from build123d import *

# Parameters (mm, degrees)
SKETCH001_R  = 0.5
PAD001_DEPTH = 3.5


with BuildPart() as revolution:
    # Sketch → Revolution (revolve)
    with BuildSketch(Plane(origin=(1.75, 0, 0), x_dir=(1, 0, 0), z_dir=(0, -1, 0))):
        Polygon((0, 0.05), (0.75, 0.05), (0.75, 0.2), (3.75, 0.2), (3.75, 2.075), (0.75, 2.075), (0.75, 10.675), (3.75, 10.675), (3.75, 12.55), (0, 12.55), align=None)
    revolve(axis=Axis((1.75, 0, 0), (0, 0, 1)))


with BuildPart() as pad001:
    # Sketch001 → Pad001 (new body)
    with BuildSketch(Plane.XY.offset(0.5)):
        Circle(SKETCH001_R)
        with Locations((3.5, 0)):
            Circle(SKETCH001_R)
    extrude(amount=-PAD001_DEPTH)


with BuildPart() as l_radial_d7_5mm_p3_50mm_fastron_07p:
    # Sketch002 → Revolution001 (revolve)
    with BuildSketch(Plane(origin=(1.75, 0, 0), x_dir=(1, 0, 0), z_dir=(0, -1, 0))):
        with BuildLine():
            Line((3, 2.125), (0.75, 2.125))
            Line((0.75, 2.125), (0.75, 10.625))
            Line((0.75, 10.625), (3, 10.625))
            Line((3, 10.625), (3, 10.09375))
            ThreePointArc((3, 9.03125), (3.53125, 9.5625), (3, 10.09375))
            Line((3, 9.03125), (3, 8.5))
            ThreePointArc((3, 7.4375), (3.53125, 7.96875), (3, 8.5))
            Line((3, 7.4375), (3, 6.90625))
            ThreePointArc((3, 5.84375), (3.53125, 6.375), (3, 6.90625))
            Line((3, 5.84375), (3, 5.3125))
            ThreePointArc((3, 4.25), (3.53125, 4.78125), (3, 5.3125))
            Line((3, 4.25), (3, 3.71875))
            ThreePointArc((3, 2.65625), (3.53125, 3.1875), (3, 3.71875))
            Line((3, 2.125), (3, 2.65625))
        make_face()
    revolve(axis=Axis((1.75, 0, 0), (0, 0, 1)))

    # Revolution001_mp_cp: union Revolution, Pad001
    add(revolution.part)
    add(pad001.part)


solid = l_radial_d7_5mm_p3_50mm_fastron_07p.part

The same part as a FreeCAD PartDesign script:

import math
import FreeCAD as App
import Part
import Sketcher

doc = App.newDocument("Part")
body = doc.addObject("PartDesign::Body", "Body")

# Sketch on XZ plane
sketch1 = doc.addObject("Sketcher::SketchObject", "Sketch")
body.addObject(sketch1)
sketch1.AttachmentSupport = (doc.XZ_Plane, [""])
sketch1.MapMode = "FlatFace"
sketch1.addGeometry([
    Part.LineSegment(App.Vector(1.75, 0.05, 0), App.Vector(2.5, 0.05, 0)),  # 0
    Part.LineSegment(App.Vector(2.5, 0.05, 0), App.Vector(2.5, 0.2, 0)),  # 1
    Part.LineSegment(App.Vector(2.5, 0.2, 0), App.Vector(5.5, 0.2, 0)),  # 2
    Part.LineSegment(App.Vector(5.5, 0.2, 0), App.Vector(5.5, 2.08, 0)),  # 3
    Part.LineSegment(App.Vector(5.5, 2.08, 0), App.Vector(2.5, 2.08, 0)),  # 4
    Part.LineSegment(App.Vector(2.5, 2.08, 0), App.Vector(2.5, 10.68, 0)),  # 5
    Part.LineSegment(App.Vector(2.5, 10.68, 0), App.Vector(5.5, 10.68, 0)),  # 6
    Part.LineSegment(App.Vector(5.5, 10.68, 0), App.Vector(5.5, 12.55, 0)),  # 7
    Part.LineSegment(App.Vector(5.5, 12.55, 0), App.Vector(1.75, 12.55, 0)),  # 8
    Part.LineSegment(App.Vector(1.75, 12.55, 0), App.Vector(1.75, 0.05, 0)),  # 9
], False)
sketch1.addGeometry(Part.LineSegment(App.Vector(1.75, 0.05, 0), App.Vector(1.75, 12.55, 0)), True)  # axis
sketch1.addConstraint([
    Sketcher.Constraint("Coincident", 0, 2, 1, 1),
    Sketcher.Constraint("Coincident", 1, 2, 2, 1),
    Sketcher.Constraint("Coincident", 2, 2, 3, 1),
    Sketcher.Constraint("Coincident", 3, 2, 4, 1),
    Sketcher.Constraint("Coincident", 4, 2, 5, 1),
    Sketcher.Constraint("Coincident", 5, 2, 6, 1),
    Sketcher.Constraint("Coincident", 6, 2, 7, 1),
    Sketcher.Constraint("Coincident", 7, 2, 8, 1),
    Sketcher.Constraint("Coincident", 8, 2, 9, 1),
    Sketcher.Constraint("Coincident", 9, 2, 0, 1),
    Sketcher.Constraint("Horizontal", 0),
    Sketcher.Constraint("Vertical", 1),
    Sketcher.Constraint("Horizontal", 2),
    Sketcher.Constraint("Vertical", 3),
    Sketcher.Constraint("Horizontal", 4),
    Sketcher.Constraint("Vertical", 5),
    Sketcher.Constraint("Horizontal", 6),
    Sketcher.Constraint("Vertical", 7),
    Sketcher.Constraint("Horizontal", 8),
    Sketcher.Constraint("Vertical", 9),
    Sketcher.Constraint("Vertical", 10),
    Sketcher.Constraint("Coincident", 10, 1, 9, 2),
    Sketcher.Constraint("Horizontal", 7, 2, 10, 2),
    Sketcher.Constraint("Vertical", 1, 2, 4, 2),
    Sketcher.Constraint("Vertical", 3, 2, 6, 2),
    Sketcher.Constraint("Equal", 3, 7),
    Sketcher.Constraint("DistanceX", 2, 1, 2, 2, 3.0),
    Sketcher.Constraint("DistanceY", 5, 1, 5, 2, 8.6),
    Sketcher.Constraint("DistanceY", 9, 2, 9, 1, 12.5),
    Sketcher.Constraint("DistanceX", 0, 1, 0, 2, 0.75),
    Sketcher.Constraint("DistanceY", 1, 1, 1, 2, 0.15),
    Sketcher.Constraint("DistanceX", -1, 1, 0, 2, 2.5),
    Sketcher.Constraint("DistanceY", -1, 1, 1, 2, 0.2),
])
revolution = doc.addObject("PartDesign::Revolution", "Revolution")
body.addObject(revolution)
revolution.Profile = sketch1
revolution.ReferenceAxis = (sketch1, ["Axis0"])
revolution.Angle = 360
body2 = doc.addObject("PartDesign::Body", "Body001")
body2.AllowCompound = True

# Sketch on XY plane
sketch2 = doc.addObject("Sketcher::SketchObject", "Sketch001")
body2.addObject(sketch2)
sketch2.AttachmentSupport = (doc.getObject("XY_Plane001"), [""])
sketch2.MapMode = "FlatFace"
sketch2.AttachmentOffset = App.Placement(App.Vector(0, 0, 0.5), App.Rotation())
sketch2.addGeometry([
    Part.Circle(App.Vector(0, 0, 0), App.Vector(0, 0, 1), 0.5),
    Part.Circle(App.Vector(3.5, 0, 0), App.Vector(0, 0, 1), 0.5),
], False)
sketch2.addConstraint([
    Sketcher.Constraint("Coincident", 0, 3, -1, 1),
    Sketcher.Constraint("Equal", 0, 1),
    Sketcher.Constraint("PointOnObject", 1, 3, -1),
    Sketcher.Constraint("Diameter", 0, 1.0),
    Sketcher.Constraint("DistanceX", -1, 1, 1, 3, 3.5),
])
pad1 = doc.addObject("PartDesign::Pad", "Pad")
body2.addObject(pad1)
pad1.Profile = sketch2
pad1.Length = 3.5
pad1.Reversed = True
body3 = doc.addObject("PartDesign::Body", "Body002")

# Sketch on XZ plane
sketch3 = doc.addObject("Sketcher::SketchObject", "Sketch002")
body3.addObject(sketch3)
sketch3.AttachmentSupport = (doc.getObject("XZ_Plane002"), [""])
sketch3.MapMode = "FlatFace"
sketch3.addGeometry([
    Part.LineSegment(App.Vector(2.5, 2.1, 0), App.Vector(4.8, 2.1, 0)),  # 0
    Part.LineSegment(App.Vector(4.8, 2.1, 0), App.Vector(4.8, 2.7, 0)),  # 1
    Part.ArcOfCircle(Part.Circle(App.Vector(4.8, 3.2, 0), App.Vector(0, 0, 1), 0.5), math.radians(-90), math.radians(90)),  # 2
    Part.LineSegment(App.Vector(4.8, 3.7, 0), App.Vector(4.8, 4.2, 0)),  # 3
    Part.ArcOfCircle(Part.Circle(App.Vector(4.8, 4.8, 0), App.Vector(0, 0, 1), 0.5), math.radians(-90), math.radians(90)),  # 4
    Part.LineSegment(App.Vector(4.8, 5.3, 0), App.Vector(4.8, 5.8, 0)),  # 5
    Part.ArcOfCircle(Part.Circle(App.Vector(4.8, 6.4, 0), App.Vector(0, 0, 1), 0.5), math.radians(-90), math.radians(90)),  # 6
    Part.LineSegment(App.Vector(4.8, 6.9, 0), App.Vector(4.8, 7.4, 0)),  # 7
    Part.ArcOfCircle(Part.Circle(App.Vector(4.8, 8, 0), App.Vector(0, 0, 1), 0.5), math.radians(-90), math.radians(90)),  # 8
    Part.LineSegment(App.Vector(4.8, 8.5, 0), App.Vector(4.8, 9, 0)),  # 9
    Part.ArcOfCircle(Part.Circle(App.Vector(4.8, 9.6, 0), App.Vector(0, 0, 1), 0.5), math.radians(-90), math.radians(90)),  # 10
    Part.LineSegment(App.Vector(4.8, 10.1, 0), App.Vector(4.8, 10.6, 0)),  # 11
    Part.LineSegment(App.Vector(4.8, 10.6, 0), App.Vector(2.5, 10.6, 0)),  # 12
    Part.LineSegment(App.Vector(2.5, 10.6, 0), App.Vector(2.5, 2.1, 0)),  # 13
], False)
sketch3.addGeometry(Part.LineSegment(App.Vector(1.8, 2.1, 0), App.Vector(1.8, 10.6, 0)), True)  # axis
sketch3.addConstraint([
    Sketcher.Constraint("Coincident", 0, 2, 1, 1),
    Sketcher.Constraint("Coincident", 1, 2, 2, 1),
    Sketcher.Constraint("Coincident", 2, 2, 3, 1),
    Sketcher.Constraint("Coincident", 3, 2, 4, 1),
    Sketcher.Constraint("Coincident", 4, 2, 5, 1),
    Sketcher.Constraint("Coincident", 5, 2, 6, 1),
    Sketcher.Constraint("Coincident", 6, 2, 7, 1),
    Sketcher.Constraint("Coincident", 7, 2, 8, 1),
    Sketcher.Constraint("Coincident", 8, 2, 9, 1),
    Sketcher.Constraint("Coincident", 9, 2, 10, 1),
    Sketcher.Constraint("Coincident", 10, 2, 11, 1),
    Sketcher.Constraint("Coincident", 11, 2, 12, 1),
    Sketcher.Constraint("Coincident", 12, 2, 13, 1),
    Sketcher.Constraint("Coincident", 13, 2, 0, 1),
    Sketcher.Constraint("Horizontal", 0),
    Sketcher.Constraint("Vertical", 1),
    Sketcher.Constraint("Vertical", 3),
    Sketcher.Constraint("Vertical", 5),
    Sketcher.Constraint("Vertical", 7),
    Sketcher.Constraint("Vertical", 9),
    Sketcher.Constraint("Vertical", 11),
    Sketcher.Constraint("Horizontal", 12),
    Sketcher.Constraint("Vertical", 13),
    Sketcher.Constraint("Vertical", 14),
    Sketcher.Constraint("Equal", 2, 4),
    Sketcher.Constraint("Equal", 4, 6),
    Sketcher.Constraint("Equal", 6, 8),
    Sketcher.Constraint("Equal", 8, 10),
    Sketcher.Constraint("Horizontal", 13, 2, 14, 1),
    Sketcher.Constraint("Horizontal", 12, 2, 14, 2),
    Sketcher.Constraint("Vertical", 2, 3, 4, 3),
    Sketcher.Constraint("Vertical", 4, 3, 6, 3),
    Sketcher.Constraint("Vertical", 6, 3, 8, 3),
    Sketcher.Constraint("Vertical", 8, 3, 10, 3),
    Sketcher.Constraint("Vertical", 10, 3, 0, 2),
    Sketcher.Constraint("Vertical", 1, 2, 2, 2),
    Sketcher.Constraint("Vertical", 3, 2, 4, 2),
    Sketcher.Constraint("Vertical", 5, 2, 6, 2),
    Sketcher.Constraint("Vertical", 7, 2, 8, 2),
    Sketcher.Constraint("Vertical", 9, 2, 10, 2),
    Sketcher.Constraint("Equal", 1, 3),
    Sketcher.Constraint("Equal", 3, 5),
    Sketcher.Constraint("Equal", 5, 7),
    Sketcher.Constraint("Equal", 7, 9),
    Sketcher.Constraint("Equal", 9, 11),
    Sketcher.Constraint("DistanceY", 13, 2, 13, 1, 8.5),
    Sketcher.Constraint("DistanceX", 14, 1, 0, 2, 3.0),
    Sketcher.Constraint("DistanceX", 0, 1, 0, 2, 2.25),
    Sketcher.Constraint("DistanceY", -1, 1, 8, 2, 8.5),
    Sketcher.Constraint("DistanceX", -1, 1, 12, 2, 2.5),
    Sketcher.Constraint("DistanceY", -1, 1, 3, 2, 4.25),
])
revolution2 = doc.addObject("PartDesign::Revolution", "Revolution001")
body3.addObject(revolution2)
revolution2.Profile = sketch3
revolution2.ReferenceAxis = (sketch3, ["Axis0"])
revolution2.Angle = 360
doc.recompute()

boolean = doc.addObject("PartDesign::Boolean", "Boolean")
body3.addObject(boolean)
boolean.Type = "Fuse"
boolean.addObjects([body])
doc.recompute()

boolean2 = doc.addObject("PartDesign::Boolean", "Boolean001")
body3.addObject(boolean2)
boolean2.Type = "Fuse"
boolean2.addObjects([body2])

doc.recompute()
